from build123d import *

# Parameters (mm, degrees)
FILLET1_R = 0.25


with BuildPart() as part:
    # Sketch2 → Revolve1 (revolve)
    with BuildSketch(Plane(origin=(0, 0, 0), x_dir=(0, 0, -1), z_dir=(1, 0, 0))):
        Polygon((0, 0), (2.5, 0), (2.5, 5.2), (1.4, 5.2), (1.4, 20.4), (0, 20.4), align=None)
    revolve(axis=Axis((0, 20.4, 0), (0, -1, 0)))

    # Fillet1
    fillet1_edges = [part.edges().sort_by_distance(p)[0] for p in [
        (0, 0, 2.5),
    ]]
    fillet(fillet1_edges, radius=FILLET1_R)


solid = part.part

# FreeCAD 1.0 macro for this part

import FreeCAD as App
import Part
import Sketcher
Q = App.Units.Quantity


def edges_at(feature, points):
    """Names of the edges that pass closest to the given points."""
    edges = feature.Shape.Edges
    near = lambda p: min(range(len(edges)), key=lambda i: edges[i].distToShape(Part.Vertex(*p))[0])
    return sorted({f"Edge{near(p) + 1}" for p in points})


def add_polygon(sketch, points):
    """Adds a closed chain of lines whose ends are joined by coincident constraints."""
    first, n = sketch.GeometryCount, len(points)
    for a, b in zip(points, points[1:] + points[:1]):
        sketch.addGeometry(Part.LineSegment(App.Vector(*a, 0), App.Vector(*b, 0)), False)
    for i in range(n):
        sketch.addConstraint(Sketcher.Constraint("Coincident", first + i, 2, first + (i + 1) % n, 1))

doc = App.newDocument("Part")
body = doc.addObject("PartDesign::Body", "Body")

sketch1 = body.newObject("Sketcher::SketchObject", "Sketch")
sketch1.AttachmentSupport = (doc.getObject("YZ_Plane"), [""])
sketch1.MapMode = "FlatFace"
add_polygon(sketch1, [(0, 0), (0, -2.5), (5.2, -2.5), (5.2, -1.4), (20.4, -1.4), (20.4, 0)])
sketch1.addConstraint(Sketcher.Constraint("Vertical", 0))
sketch1.addConstraint(Sketcher.Constraint("Horizontal", 1))
sketch1.addConstraint(Sketcher.Constraint("Vertical", 2))
sketch1.addConstraint(Sketcher.Constraint("Horizontal", 3))
sketch1.addConstraint(Sketcher.Constraint("Vertical", 4))
sketch1.addConstraint(Sketcher.Constraint("Horizontal", 5))
sketch1.addConstraint(Sketcher.Constraint("Coincident", 5, 2, -1, 1))
sketch1.addConstraint(Sketcher.Constraint("DistanceX", 1, 1, 1, 2, Q("5.2 mm")))
sketch1.addConstraint(Sketcher.Constraint("DistanceX", 3, 1, 3, 2, Q("15.2 mm")))
sketch1.addConstraint(Sketcher.Constraint("DistanceY", 0, 2, 0, 1, Q("2.5 mm")))
sketch1.addConstraint(Sketcher.Constraint("DistanceY", 2, 1, 2, 2, Q("1.1 mm")))
revolution = body.newObject("PartDesign::Revolution", "Revolution")
revolution.Profile = sketch1
revolution.ReferenceAxis = (sketch1, ["H_Axis"])
revolution.Angle = 360
doc.recompute()

fillet = body.newObject("PartDesign::Fillet", "Fillet")
fillet.Base = (revolution, edges_at(revolution, [(0, 0, 2.5)]))
fillet.Radius = 0.25

doc.recompute()
